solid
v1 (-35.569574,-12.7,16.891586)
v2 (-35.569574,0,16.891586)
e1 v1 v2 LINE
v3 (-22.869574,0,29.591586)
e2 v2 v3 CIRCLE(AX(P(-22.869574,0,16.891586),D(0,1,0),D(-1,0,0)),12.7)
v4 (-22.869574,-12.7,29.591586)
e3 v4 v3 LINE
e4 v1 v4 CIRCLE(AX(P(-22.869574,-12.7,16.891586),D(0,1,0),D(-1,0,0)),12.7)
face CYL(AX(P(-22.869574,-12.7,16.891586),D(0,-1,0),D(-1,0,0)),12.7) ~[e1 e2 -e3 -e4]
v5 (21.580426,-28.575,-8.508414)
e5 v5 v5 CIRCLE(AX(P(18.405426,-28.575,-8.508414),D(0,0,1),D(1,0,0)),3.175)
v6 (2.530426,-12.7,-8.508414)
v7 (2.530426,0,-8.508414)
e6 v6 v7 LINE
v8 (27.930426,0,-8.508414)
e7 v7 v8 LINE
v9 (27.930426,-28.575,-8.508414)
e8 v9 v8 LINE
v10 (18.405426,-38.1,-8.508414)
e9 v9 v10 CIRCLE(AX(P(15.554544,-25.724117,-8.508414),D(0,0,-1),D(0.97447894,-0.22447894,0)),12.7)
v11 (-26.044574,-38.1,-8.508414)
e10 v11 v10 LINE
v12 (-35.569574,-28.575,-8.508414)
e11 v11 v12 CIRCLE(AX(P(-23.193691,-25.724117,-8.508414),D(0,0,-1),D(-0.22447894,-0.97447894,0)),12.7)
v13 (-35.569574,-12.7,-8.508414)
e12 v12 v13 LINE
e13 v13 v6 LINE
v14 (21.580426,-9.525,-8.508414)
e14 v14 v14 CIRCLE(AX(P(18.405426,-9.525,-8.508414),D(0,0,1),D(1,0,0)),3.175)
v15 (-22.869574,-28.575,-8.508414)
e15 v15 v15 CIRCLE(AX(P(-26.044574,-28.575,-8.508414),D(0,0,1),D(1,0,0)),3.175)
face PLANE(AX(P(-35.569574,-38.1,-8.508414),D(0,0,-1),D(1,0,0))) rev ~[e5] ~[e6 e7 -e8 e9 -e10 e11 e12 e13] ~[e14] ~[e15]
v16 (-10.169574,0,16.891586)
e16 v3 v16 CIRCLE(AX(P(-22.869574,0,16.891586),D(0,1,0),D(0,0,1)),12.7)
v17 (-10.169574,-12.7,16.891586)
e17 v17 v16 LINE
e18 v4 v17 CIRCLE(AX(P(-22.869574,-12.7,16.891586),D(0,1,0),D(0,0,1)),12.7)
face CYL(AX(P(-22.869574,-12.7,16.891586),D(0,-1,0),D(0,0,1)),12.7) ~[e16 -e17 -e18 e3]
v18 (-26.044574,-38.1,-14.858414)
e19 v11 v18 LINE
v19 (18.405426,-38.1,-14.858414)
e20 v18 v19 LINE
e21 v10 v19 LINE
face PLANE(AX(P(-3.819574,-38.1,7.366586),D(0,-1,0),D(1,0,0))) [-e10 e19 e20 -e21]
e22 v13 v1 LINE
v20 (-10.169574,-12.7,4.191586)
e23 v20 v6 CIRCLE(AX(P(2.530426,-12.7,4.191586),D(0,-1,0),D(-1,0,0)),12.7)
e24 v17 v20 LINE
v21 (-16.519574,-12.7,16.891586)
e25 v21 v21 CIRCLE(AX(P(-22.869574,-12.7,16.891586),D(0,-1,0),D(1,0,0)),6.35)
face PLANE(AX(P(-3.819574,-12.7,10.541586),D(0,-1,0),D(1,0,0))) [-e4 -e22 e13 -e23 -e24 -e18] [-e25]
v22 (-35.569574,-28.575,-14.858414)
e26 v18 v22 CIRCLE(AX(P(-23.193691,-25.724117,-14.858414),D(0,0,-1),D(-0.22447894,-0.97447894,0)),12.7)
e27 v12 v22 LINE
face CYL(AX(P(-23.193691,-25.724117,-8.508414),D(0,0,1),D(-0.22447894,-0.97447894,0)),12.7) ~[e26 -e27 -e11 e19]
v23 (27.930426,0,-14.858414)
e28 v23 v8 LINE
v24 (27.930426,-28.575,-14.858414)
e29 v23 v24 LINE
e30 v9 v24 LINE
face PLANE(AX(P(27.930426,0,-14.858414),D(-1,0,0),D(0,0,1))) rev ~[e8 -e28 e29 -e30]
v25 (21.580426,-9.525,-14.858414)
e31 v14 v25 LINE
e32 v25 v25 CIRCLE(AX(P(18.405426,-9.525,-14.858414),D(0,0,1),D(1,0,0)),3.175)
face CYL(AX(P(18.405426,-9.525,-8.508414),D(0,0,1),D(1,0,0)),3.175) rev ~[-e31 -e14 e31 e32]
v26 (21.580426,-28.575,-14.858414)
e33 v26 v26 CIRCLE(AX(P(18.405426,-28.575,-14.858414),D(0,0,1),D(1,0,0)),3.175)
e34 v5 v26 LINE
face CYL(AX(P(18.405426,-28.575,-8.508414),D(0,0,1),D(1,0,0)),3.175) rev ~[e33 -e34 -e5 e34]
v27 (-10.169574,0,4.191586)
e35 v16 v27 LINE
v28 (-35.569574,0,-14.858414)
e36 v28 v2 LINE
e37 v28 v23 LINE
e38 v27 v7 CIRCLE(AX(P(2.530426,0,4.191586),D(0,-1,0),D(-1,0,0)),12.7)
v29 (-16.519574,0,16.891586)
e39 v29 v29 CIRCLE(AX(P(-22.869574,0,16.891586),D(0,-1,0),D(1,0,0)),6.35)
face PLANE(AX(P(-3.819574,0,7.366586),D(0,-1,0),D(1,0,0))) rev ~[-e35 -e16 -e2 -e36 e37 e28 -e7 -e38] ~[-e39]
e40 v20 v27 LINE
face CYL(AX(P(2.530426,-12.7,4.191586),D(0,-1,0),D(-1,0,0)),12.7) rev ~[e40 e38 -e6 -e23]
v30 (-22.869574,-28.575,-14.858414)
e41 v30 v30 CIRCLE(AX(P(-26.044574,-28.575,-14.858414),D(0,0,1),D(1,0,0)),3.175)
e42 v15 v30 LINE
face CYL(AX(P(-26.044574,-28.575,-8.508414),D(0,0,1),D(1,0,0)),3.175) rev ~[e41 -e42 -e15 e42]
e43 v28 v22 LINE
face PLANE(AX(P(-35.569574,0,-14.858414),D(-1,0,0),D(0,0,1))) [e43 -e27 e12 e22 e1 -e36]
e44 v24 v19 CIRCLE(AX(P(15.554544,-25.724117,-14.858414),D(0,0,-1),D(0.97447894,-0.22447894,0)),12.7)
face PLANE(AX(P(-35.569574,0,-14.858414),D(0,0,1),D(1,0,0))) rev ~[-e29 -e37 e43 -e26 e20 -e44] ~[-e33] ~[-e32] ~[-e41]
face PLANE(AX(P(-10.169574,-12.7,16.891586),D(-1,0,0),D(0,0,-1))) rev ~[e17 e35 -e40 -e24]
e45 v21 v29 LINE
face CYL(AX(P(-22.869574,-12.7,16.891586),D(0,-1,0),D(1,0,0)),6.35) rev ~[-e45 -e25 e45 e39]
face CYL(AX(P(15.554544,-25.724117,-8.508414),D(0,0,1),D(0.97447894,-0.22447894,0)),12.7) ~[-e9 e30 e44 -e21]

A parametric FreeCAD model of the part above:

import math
import FreeCAD as App
import Part
import Sketcher
Q = App.Units.Quantity


def add_polygon(sketch, points):
    """Adds a closed chain of lines whose ends are joined by coincident constraints."""
    first, n = sketch.GeometryCount, len(points)
    for a, b in zip(points, points[1:] + points[:1]):
        sketch.addGeometry(Part.LineSegment(App.Vector(*a, 0), App.Vector(*b, 0)), False)
    for i in range(n):
        sketch.addConstraint(Sketcher.Constraint("Coincident", first + i, 2, first + (i + 1) % n, 1))

doc = App.newDocument("Part")
body = doc.addObject("PartDesign::Body", "Body")

# Sketch on XZ plane
sketch1 = body.newObject("Sketcher::SketchObject", "Sketch")
sketch1.AttachmentSupport = (doc.getObject("XZ_Plane"), [""])
sketch1.MapMode = "FlatFace"
add_polygon(sketch1, [(-36, 30), (-36, -15), (28, -15), (28, 30)])  # lines 0-3
sketch1.addConstraint([
    Sketcher.Constraint("Vertical", 0),
    Sketcher.Constraint("Horizontal", 1),
    Sketcher.Constraint("Vertical", 2),
    Sketcher.Constraint("Horizontal", 3),
    Sketcher.Constraint("DistanceX", 1, 1, 1, 2, Q("2.5 in")),
    Sketcher.Constraint("DistanceY", 0, 2, 0, 1, Q("1.75 in")),
    Sketcher.Constraint("DistanceX", 0, 2, -1, 1, Q("35.569574 mm")),
    Sketcher.Constraint("DistanceY", 0, 2, -1, 1, Q("14.858414 mm")),
])
pad1 = body.newObject("PartDesign::Pad", "Pad")
pad1.Profile = sketch1
pad1.Length = Q("1.5 in")

# Sketch on XZ plane
sketch2 = body.newObject("Sketcher::SketchObject", "Sketch001")
sketch2.AttachmentSupport = (doc.getObject("XZ_Plane"), [""])
sketch2.MapMode = "FlatFace"
sketch2.AttachmentOffset = App.Placement(App.Vector(0, 0, 1.5 * 25.4), App.Rotation())
add_polygon(sketch2, [(-36, 30), (-36, -9), (28, -9), (28, 30)])  # lines 0-3
sketch2.addConstraint([
    Sketcher.Constraint("Vertical", 0),
    Sketcher.Constraint("Horizontal", 1),
    Sketcher.Constraint("Vertical", 2),
    Sketcher.Constraint("Horizontal", 3),
    Sketcher.Constraint("DistanceX", 1, 1, 1, 2, Q("2.5 in")),
    Sketcher.Constraint("DistanceY", 0, 2, 0, 1, Q("1.5 in")),
    Sketcher.Constraint("DistanceX", 0, 2, -1, 1, Q("35.569574 mm")),
    Sketcher.Constraint("DistanceY", 0, 2, -1, 1, Q("8.508414 mm")),
])
pocket1 = body.newObject("PartDesign::Pocket", "Pocket")
pocket1.Profile = sketch2
pocket1.Length = Q("1 in")

# Sketch on XZ plane
sketch3 = body.newObject("Sketcher::SketchObject", "Sketch002")
sketch3.AttachmentSupport = (doc.getObject("XZ_Plane"), [""])
sketch3.MapMode = "FlatFace"
sketch3.AttachmentOffset = App.Placement(App.Vector(0, 0, 0.5 * 25.4), App.Rotation())
sketch3.addGeometry([
    Part.LineSegment(App.Vector(-36, 30, 0), App.Vector(-36, 17, 0)),  # 0
    Part.ArcOfCircle(Part.Circle(App.Vector(-23, 17, 0), App.Vector(0, 0, 1), 13), math.radians(90), math.radians(180)),  # 1
    Part.LineSegment(App.Vector(-23, 30, 0), App.Vector(-36, 30, 0)),  # 2
    Part.ArcOfCircle(Part.Circle(App.Vector(3, 4, 0), App.Vector(0, 0, 1), 13), math.radians(180), math.radians(270)),  # 3
    Part.LineSegment(App.Vector(3, -9, 0), App.Vector(28, -9, 0)),  # 4
    Part.LineSegment(App.Vector(28, -9, 0), App.Vector(28, 30, 0)),  # 5
    Part.LineSegment(App.Vector(28, 30, 0), App.Vector(-23, 30, 0)),  # 6
    Part.ArcOfCircle(Part.Circle(App.Vector(-23, 17, 0), App.Vector(0, 0, 1), 13), math.radians(0), math.radians(90)),  # 7
    Part.LineSegment(App.Vector(-10, 17, 0), App.Vector(-10, 4, 0)),  # 8
    Part.Circle(App.Vector(-23, 17, 0), App.Vector(0, 0, 1), 6),  # 9
], False)
sketch3.addConstraint([
    Sketcher.Constraint("Tangent", 0, 2, 1, 2),
    Sketcher.Constraint("Tangent", 1, 1, 2, 1),
    Sketcher.Constraint("Coincident", 2, 2, 0, 1),
    Sketcher.Constraint("Tangent", 3, 2, 4, 1),
    Sketcher.Constraint("Coincident", 4, 2, 5, 1),
    Sketcher.Constraint("Coincident", 5, 2, 6, 1),
    Sketcher.Constraint("Tangent", 6, 2, 7, 2),
    Sketcher.Constraint("Tangent", 7, 1, 8, 1),
    Sketcher.Constraint("Tangent", 8, 2, 3, 1),
    Sketcher.Constraint("Vertical", 0),
    Sketcher.Constraint("Horizontal", 2),
    Sketcher.Constraint("Horizontal", 4),
    Sketcher.Constraint("Vertical", 5),
    Sketcher.Constraint("Horizontal", 6),
    Sketcher.Constraint("Vertical", 8),
    Sketcher.Constraint("Coincident", 7, 3, 1, 3),
    Sketcher.Constraint("Coincident", 9, 3, 1, 3),
    Sketcher.Constraint("Equal", 1, 3),
    Sketcher.Constraint("Equal", 3, 7),
    Sketcher.Constraint("Equal", 0, 8),
    Sketcher.Constraint("Diameter", 9, Q("0.5 in")),
    Sketcher.Constraint("Radius", 1, Q("0.5 in")),
    Sketcher.Constraint("DistanceX", 4, 1, 4, 2, Q("1 in")),
    Sketcher.Constraint("DistanceX", 1, 3, -1, 1, Q("22.869574 mm")),
    Sketcher.Constraint("DistanceY", -1, 1, 1, 3, Q("16.891586 mm")),
])
pocket2 = body.newObject("PartDesign::Pocket", "Pocket001")
pocket2.Profile = sketch3
pocket2.Length = Q("0.5 in")

# Sketch on XY plane
sketch4 = body.newObject("Sketcher::SketchObject", "Sketch003")
sketch4.AttachmentSupport = (doc.getObject("XY_Plane"), [""])
sketch4.MapMode = "FlatFace"
sketch4.AttachmentOffset = App.Placement(App.Vector(0, 0, -8.508414), App.Rotation())
sketch4.addGeometry([
    Part.Circle(App.Vector(18.4, -9.5, 0), App.Vector(0, 0, 1), 3.2),  # 0
    Part.Circle(App.Vector(18.4, -28.6, 0), App.Vector(0, 0, 1), 3.2),  # 1
    Part.Circle(App.Vector(-26, -28.6, 0), App.Vector(0, 0, 1), 3.2),  # 2
    Part.LineSegment(App.Vector(-35.6, -38.1, 0), App.Vector(-26, -38.1, 0)),  # 3
    Part.ArcOfCircle(Part.Circle(App.Vector(-23.2, -25.7, 0), App.Vector(0, 0, 1), 12.7), math.radians(-167), math.radians(-103)),  # 4
    Part.LineSegment(App.Vector(-35.6, -28.6, 0), App.Vector(-35.6, -38.1, 0)),  # 5
    Part.ArcOfCircle(Part.Circle(App.Vector(15.6, -25.7, 0), App.Vector(0, 0, 1), 12.7), math.radians(-77), math.radians(-13)),  # 6
    Part.LineSegment(App.Vector(18.4, -38.1, 0), App.Vector(27.9, -38.1, 0)),  # 7
    Part.LineSegment(App.Vector(27.9, -38.1, 0), App.Vector(27.9, -28.6, 0)),  # 8
], False)
sketch4.addConstraint([
    Sketcher.Constraint("Coincident", 3, 2, 4, 2),
    Sketcher.Constraint("Coincident", 4, 1, 5, 1),
    Sketcher.Constraint("Coincident", 5, 2, 3, 1),
    Sketcher.Constraint("Coincident", 6, 1, 7, 1),
    Sketcher.Constraint("Coincident", 7, 2, 8, 1),
    Sketcher.Constraint("Coincident", 8, 2, 6, 2),
    Sketcher.Constraint("Horizontal", 3),
    Sketcher.Constraint("Vertical", 5),
    Sketcher.Constraint("Horizontal", 7),
    Sketcher.Constraint("Vertical", 8),
    Sketcher.Constraint("Equal", 0, 1),
    Sketcher.Constraint("Equal", 1, 2),
    Sketcher.Constraint("Equal", 4, 6),
    Sketcher.Constraint("Horizontal", 1, 3, 2, 3),
    Sketcher.Constraint("Horizontal", 4, 3, 6, 3),
    Sketcher.Constraint("Horizontal", 2, 3, 4, 1),
    Sketcher.Constraint("Horizontal", 5, 2, 6, 1),
    Sketcher.Constraint("Horizontal", 4, 1, 8, 2),
    Sketcher.Constraint("Vertical", 0, 3, 1, 3),
    Sketcher.Constraint("Vertical", 2, 3, 3, 2),
    Sketcher.Constraint("Vertical", 1, 3, 6, 1),
    Sketcher.Constraint("Equal", 7, 5),
    Sketcher.Constraint("Radius", 4, Q("0.5 in")),
    Sketcher.Constraint("Diameter", 0, Q("0.25 in")),
    Sketcher.Constraint("DistanceY", 3, 2, -1, 1, Q("1.5 in")),
    Sketcher.Constraint("DistanceX", 3, 1, 3, 2, Q("0.375 in")),
    Sketcher.Constraint("DistanceY", 1, 3, 0, 3, Q("0.75 in")),
    Sketcher.Constraint("DistanceX", 2, 3, 1, 3, Q("1.75 in")),
    Sketcher.Constraint("DistanceX", 4, 3, -1, 1, Q("23.193691 mm")),
])
pocket3 = body.newObject("PartDesign::Pocket", "Pocket002")
pocket3.Profile = sketch4
pocket3.Length = Q("0.25 in")

doc.recompute()
